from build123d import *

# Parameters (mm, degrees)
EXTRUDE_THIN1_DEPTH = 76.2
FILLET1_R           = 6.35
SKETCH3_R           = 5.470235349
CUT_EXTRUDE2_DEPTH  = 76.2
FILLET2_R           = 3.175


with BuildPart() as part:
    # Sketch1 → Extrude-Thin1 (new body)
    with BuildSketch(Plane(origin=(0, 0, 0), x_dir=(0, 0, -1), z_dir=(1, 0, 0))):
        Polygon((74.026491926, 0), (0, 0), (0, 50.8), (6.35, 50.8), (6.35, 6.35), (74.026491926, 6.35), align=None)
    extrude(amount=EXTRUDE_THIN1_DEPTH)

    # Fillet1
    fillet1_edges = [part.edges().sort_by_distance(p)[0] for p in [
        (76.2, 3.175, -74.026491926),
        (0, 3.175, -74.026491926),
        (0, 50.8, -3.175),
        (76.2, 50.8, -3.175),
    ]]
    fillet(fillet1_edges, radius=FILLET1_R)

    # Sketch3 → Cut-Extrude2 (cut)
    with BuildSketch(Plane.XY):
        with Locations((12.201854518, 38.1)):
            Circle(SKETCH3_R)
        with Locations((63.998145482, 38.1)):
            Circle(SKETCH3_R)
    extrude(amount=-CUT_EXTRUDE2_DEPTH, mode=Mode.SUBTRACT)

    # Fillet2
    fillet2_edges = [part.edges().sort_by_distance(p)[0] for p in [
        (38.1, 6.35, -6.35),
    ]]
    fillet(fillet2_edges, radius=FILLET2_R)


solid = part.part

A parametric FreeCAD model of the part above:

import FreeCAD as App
import Part
import Sketcher

V = App.Vector
Q = App.Units.Quantity


def edges_at(feature, points):
    """Names of the edges that pass closest to the given points."""
    edges = feature.Shape.Edges
    near = lambda p: min(range(len(edges)), key=lambda i: edges[i].distToShape(Part.Vertex(*p))[0])
    return sorted({f"Edge{near(p) + 1}" for p in points})

doc = App.newDocument("Part")
body = doc.addObject("PartDesign::Body", "Body")

sketch1 = body.newObject("Sketcher::SketchObject", "Sketch")
sketch1.AttachmentSupport = (doc.getObject("YZ_Plane"), [""])
sketch1.MapMode = "FlatFace"
sketch1.addGeometry([
    Part.LineSegment(V(0, 0, 0), V(0, -74.026492, 0)),
    Part.LineSegment(V(0, -74.026492, 0), V(6.35, -74.026492, 0)),
    Part.LineSegment(V(6.35, -74.026492, 0), V(6.35, -6.35, 0)),
    Part.LineSegment(V(6.35, -6.35, 0), V(50.8, -6.35, 0)),
    Part.LineSegment(V(50.8, -6.35, 0), V(50.8, 0, 0)),
    Part.LineSegment(V(50.8, 0, 0), V(0, 0, 0)),
], False)
sketch1.addConstraint([
    Sketcher.Constraint("Coincident", 0, 2, 1, 1),
    Sketcher.Constraint("Coincident", 1, 2, 2, 1),
    Sketcher.Constraint("Coincident", 2, 2, 3, 1),
    Sketcher.Constraint("Coincident", 3, 2, 4, 1),
    Sketcher.Constraint("Coincident", 4, 2, 5, 1),
    Sketcher.Constraint("Coincident", 5, 2, 0, 1),
    Sketcher.Constraint("Vertical", 0),
    Sketcher.Constraint("Horizontal", 1),
    Sketcher.Constraint("Vertical", 2),
    Sketcher.Constraint("Horizontal", 3),
    Sketcher.Constraint("Vertical", 4),
    Sketcher.Constraint("Horizontal", 5),
    Sketcher.Constraint("Coincident", 5, 2, -1, 1),
    Sketcher.Constraint("Equal", 1, 4),
    Sketcher.Constraint("DistanceX", 5, 2, 5, 1, Q("2 in")),
    Sketcher.Constraint("DistanceX", 1, 1, 1, 2, Q("0.25 in")),
    Sketcher.Constraint("DistanceY", 0, 2, 0, 1, Q("74.026492 mm")),
])
pad1 = body.newObject("PartDesign::Pad", "Pad")
pad1.Profile = sketch1
pad1.Length = Q("3 in")
doc.recompute()

fillet = body.newObject("PartDesign::Fillet", "Fillet")
fillet.Base = (pad1, edges_at(pad1, [
    (76.2, 3.175, -74.026),
    (0, 3.175, -74.026),
    (0, 50.8, -3.175),
    (76.2, 50.8, -3.175),
]))
fillet.Radius = Q("0.25 in")

sketch2 = body.newObject("Sketcher::SketchObject", "Sketch001")
sketch2.AttachmentSupport = (doc.getObject("XY_Plane"), [""])
sketch2.MapMode = "FlatFace"
sketch2.addGeometry([
    Part.Circle(V(12.201855, 38.1, 0), V(0, 0, 1), 5.470235),
    Part.Circle(V(63.998145, 38.1, 0), V(0, 0, 1), 5.470235),
], False)
sketch2.addConstraint([
    Sketcher.Constraint("Equal", 0, 1),
    Sketcher.Constraint("Horizontal", 0, 3, 1, 3),
    Sketcher.Constraint("DistanceY", -1, 1, 0, 3, Q("1.5 in")),
    Sketcher.Constraint("Diameter", 0, Q("10.940471 mm")),
    Sketcher.Constraint("DistanceX", 0, 3, 1, 3, Q("51.796291 mm")),
    Sketcher.Constraint("DistanceX", -1, 1, 0, 3, Q("12.201855 mm")),
])
pocket1 = body.newObject("PartDesign::Pocket", "Pocket")
pocket1.Profile = sketch2
pocket1.Length = Q("3 in")
doc.recompute()

fillet2 = body.newObject("PartDesign::Fillet", "Fillet001")
fillet2.Base = (pocket1, edges_at(pocket1, [(38.1, 6.35, -6.35)]))
fillet2.Radius = Q("0.125 in")

doc.recompute()
